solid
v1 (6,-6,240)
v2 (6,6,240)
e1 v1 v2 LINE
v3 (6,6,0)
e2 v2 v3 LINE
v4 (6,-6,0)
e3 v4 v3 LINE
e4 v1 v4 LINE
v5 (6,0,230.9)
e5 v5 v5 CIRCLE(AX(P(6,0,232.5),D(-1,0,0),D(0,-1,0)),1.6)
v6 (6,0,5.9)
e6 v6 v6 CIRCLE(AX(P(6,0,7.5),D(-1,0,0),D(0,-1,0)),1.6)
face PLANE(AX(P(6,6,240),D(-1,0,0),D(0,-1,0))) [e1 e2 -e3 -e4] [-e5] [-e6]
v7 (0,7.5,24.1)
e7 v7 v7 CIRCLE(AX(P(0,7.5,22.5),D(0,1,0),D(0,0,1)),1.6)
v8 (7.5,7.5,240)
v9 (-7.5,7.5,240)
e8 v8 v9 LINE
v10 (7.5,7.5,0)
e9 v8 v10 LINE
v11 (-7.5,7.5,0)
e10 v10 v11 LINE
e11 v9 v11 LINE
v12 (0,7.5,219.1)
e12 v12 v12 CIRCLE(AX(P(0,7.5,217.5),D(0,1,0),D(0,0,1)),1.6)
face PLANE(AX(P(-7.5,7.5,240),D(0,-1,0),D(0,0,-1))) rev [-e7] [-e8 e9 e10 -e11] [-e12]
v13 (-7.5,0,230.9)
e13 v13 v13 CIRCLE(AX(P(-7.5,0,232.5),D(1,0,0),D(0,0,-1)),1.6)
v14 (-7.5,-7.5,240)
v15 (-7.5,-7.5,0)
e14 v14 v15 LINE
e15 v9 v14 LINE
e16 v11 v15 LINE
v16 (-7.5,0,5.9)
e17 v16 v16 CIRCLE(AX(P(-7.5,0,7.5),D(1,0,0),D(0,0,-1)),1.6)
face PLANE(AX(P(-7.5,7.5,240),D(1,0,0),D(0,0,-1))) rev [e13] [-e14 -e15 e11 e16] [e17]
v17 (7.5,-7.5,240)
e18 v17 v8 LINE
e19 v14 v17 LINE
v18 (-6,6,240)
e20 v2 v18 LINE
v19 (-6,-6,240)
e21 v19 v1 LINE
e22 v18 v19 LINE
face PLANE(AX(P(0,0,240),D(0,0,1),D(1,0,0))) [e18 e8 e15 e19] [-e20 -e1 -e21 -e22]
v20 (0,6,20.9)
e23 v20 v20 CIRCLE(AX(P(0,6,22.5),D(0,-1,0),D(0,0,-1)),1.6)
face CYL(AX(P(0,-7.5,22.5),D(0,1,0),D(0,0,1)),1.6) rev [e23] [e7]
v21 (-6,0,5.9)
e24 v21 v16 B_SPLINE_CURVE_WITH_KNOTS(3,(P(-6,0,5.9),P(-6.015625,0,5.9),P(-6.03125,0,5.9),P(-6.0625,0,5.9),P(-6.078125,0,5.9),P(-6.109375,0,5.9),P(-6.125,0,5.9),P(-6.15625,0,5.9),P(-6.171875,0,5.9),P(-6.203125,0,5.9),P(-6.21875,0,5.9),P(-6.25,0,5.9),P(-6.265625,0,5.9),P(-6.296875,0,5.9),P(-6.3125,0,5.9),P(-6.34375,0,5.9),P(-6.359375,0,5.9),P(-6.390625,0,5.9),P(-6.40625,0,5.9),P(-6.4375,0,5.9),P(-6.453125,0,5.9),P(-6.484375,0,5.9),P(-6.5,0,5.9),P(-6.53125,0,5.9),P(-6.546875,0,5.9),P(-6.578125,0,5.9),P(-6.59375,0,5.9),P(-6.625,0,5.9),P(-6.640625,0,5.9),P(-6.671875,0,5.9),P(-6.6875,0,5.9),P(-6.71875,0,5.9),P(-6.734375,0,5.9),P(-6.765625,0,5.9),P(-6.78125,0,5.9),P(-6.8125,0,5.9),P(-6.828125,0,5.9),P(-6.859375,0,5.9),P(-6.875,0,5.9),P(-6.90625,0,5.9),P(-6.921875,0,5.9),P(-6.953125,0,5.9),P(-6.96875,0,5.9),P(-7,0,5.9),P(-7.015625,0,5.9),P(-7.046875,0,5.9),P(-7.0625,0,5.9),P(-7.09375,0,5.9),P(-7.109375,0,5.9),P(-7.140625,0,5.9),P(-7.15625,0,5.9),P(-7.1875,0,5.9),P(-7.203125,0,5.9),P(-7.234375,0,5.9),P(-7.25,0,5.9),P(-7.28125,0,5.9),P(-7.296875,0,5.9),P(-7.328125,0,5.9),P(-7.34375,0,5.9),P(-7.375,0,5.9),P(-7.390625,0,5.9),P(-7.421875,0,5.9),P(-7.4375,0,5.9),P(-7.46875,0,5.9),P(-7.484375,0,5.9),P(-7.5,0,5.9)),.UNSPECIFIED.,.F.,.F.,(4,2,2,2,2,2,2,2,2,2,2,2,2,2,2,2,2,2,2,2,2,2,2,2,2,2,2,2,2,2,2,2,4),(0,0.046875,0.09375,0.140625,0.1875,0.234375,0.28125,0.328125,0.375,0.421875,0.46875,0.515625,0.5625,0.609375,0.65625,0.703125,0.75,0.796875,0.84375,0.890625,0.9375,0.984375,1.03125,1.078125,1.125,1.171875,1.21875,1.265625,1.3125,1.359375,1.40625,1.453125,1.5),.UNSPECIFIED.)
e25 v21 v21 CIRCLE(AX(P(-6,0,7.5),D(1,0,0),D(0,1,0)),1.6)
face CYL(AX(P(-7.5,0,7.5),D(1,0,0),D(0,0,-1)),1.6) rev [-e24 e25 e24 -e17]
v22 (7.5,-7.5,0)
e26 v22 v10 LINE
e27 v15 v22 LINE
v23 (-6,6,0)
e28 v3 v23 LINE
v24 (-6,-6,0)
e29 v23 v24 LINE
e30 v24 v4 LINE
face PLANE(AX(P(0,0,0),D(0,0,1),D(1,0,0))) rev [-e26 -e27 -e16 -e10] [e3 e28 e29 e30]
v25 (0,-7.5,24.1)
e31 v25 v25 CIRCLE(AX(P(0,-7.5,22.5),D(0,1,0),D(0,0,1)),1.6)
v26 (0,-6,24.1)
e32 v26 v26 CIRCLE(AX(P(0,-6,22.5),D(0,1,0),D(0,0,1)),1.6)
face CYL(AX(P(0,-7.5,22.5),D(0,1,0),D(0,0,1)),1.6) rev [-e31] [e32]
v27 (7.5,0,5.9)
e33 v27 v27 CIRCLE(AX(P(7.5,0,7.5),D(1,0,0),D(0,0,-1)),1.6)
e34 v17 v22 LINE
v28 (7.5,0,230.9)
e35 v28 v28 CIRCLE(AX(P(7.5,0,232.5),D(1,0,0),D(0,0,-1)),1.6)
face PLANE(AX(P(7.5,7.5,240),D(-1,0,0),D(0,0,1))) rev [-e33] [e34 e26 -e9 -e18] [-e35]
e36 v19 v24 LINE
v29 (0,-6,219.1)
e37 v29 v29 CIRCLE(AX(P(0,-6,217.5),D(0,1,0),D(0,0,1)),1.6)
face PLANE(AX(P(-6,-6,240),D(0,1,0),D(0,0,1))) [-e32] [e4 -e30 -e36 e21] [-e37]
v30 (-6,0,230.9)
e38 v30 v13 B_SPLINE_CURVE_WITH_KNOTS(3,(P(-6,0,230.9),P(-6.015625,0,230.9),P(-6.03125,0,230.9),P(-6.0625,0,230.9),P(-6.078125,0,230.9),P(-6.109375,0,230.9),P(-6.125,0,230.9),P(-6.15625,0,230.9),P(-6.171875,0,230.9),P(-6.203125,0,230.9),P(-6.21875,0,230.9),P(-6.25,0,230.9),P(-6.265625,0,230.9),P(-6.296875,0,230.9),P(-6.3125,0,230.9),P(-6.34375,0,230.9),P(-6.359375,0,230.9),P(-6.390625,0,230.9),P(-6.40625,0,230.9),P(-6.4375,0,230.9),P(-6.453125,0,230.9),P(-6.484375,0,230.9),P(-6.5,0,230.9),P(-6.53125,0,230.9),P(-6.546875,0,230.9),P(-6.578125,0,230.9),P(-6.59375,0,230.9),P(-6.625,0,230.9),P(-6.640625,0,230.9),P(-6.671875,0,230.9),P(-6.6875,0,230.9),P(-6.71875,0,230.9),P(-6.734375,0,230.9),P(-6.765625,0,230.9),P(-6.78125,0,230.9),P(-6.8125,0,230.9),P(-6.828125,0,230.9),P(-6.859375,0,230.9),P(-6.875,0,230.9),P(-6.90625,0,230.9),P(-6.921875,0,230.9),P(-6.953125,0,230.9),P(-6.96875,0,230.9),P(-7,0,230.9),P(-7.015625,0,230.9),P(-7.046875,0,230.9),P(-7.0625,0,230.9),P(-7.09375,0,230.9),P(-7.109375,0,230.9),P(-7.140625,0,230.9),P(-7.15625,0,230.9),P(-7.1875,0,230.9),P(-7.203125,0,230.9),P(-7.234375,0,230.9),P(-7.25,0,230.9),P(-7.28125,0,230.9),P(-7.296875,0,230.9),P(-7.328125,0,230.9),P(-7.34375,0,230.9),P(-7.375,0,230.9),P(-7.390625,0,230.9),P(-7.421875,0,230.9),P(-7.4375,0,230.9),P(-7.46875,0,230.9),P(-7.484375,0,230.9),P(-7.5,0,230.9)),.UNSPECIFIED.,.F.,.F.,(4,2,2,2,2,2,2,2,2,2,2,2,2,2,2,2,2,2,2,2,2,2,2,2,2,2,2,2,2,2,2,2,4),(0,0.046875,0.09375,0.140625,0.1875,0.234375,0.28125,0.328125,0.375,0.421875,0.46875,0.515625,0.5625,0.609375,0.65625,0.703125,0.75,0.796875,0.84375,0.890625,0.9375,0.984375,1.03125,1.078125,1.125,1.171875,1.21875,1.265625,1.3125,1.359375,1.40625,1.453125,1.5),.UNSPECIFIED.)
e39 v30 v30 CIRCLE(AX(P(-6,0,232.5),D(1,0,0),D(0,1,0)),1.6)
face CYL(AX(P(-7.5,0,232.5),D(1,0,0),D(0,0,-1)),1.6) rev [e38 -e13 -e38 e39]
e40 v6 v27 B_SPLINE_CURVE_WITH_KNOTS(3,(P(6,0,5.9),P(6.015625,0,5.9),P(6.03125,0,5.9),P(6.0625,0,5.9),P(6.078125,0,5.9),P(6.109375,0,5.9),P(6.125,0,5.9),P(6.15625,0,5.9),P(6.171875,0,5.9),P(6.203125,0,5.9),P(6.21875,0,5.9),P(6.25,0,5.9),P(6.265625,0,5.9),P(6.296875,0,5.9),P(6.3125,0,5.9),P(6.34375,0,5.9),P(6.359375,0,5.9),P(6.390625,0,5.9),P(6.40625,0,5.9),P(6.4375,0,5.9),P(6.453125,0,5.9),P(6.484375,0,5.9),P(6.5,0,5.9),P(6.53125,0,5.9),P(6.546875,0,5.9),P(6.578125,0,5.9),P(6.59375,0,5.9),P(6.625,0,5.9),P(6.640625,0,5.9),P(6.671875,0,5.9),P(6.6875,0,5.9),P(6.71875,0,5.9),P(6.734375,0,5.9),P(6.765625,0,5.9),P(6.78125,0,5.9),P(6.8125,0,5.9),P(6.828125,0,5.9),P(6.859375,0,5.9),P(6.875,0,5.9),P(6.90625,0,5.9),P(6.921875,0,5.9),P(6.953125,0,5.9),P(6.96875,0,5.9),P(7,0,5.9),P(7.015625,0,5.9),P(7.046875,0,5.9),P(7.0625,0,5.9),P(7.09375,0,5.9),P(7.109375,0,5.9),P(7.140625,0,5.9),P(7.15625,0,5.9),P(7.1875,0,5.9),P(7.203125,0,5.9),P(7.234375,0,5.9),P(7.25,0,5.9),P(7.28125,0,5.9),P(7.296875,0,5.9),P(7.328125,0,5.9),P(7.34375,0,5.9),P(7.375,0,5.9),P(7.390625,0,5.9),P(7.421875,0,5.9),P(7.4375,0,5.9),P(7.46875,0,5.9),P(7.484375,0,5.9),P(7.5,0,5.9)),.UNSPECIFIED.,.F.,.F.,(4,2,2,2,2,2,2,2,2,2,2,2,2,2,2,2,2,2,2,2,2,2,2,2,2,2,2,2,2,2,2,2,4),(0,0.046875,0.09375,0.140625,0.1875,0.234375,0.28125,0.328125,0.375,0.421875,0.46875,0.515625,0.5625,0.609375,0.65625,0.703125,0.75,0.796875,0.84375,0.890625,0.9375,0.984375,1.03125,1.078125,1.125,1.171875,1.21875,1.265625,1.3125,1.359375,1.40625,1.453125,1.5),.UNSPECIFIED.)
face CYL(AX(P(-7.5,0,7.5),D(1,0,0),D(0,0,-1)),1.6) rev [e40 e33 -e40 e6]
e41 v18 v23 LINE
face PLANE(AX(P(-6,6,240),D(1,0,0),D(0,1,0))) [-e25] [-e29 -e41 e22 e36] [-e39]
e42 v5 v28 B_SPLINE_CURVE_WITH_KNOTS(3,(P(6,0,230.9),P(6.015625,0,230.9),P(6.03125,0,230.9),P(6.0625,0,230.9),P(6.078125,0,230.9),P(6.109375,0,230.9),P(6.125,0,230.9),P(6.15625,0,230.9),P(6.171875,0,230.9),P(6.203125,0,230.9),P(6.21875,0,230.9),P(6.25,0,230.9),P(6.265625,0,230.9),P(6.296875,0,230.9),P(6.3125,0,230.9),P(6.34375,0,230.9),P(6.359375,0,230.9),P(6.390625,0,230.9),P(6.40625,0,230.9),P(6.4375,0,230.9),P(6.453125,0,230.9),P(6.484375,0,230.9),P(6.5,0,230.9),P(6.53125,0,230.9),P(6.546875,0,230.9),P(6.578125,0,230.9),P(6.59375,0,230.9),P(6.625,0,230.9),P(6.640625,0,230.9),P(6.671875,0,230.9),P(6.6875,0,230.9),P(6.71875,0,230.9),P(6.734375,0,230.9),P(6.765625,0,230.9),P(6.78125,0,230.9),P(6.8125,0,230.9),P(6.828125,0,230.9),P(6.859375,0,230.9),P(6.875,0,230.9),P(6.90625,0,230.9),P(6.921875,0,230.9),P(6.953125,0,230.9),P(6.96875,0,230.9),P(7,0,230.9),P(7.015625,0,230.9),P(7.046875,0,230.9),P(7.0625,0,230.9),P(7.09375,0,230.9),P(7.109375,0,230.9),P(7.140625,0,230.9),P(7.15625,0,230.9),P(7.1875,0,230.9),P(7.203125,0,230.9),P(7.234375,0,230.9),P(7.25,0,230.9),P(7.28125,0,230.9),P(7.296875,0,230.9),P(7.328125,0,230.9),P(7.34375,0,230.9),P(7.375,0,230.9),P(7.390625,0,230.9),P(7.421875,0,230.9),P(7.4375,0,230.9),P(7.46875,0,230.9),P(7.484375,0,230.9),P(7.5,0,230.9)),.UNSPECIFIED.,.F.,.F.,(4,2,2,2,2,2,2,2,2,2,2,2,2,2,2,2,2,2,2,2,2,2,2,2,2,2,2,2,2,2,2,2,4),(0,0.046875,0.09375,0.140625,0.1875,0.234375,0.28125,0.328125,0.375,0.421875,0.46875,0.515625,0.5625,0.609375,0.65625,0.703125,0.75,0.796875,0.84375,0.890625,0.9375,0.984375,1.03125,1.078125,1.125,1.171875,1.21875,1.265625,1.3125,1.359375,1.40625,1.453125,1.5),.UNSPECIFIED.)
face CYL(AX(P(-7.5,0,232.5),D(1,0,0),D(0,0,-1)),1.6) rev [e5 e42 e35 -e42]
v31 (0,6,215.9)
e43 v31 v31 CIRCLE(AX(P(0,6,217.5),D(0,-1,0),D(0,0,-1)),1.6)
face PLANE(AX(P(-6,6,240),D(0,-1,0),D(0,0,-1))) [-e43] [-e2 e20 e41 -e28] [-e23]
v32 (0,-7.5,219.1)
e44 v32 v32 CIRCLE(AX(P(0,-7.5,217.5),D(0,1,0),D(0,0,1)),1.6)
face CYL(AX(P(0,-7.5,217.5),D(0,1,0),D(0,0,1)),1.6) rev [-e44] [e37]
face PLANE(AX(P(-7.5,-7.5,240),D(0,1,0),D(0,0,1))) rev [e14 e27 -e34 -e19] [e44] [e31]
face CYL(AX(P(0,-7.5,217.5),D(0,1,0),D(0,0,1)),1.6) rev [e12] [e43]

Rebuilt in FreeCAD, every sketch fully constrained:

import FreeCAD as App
import Part
import Sketcher

doc = App.newDocument("Part")
params = doc.addObject("Spreadsheet::Sheet", "Params")
for row, (alias, value) in enumerate([
    ("sketch1_width", "15 mm"),
    ("sketch1_width2", "12 mm"),
    ("pad1_length", "240 mm"),
    ("sketch2_diameter", "3.2 mm"),
    ("sketch3_diameter", "3.2 mm"),
], start=1):
    params.set(f"A{row}", alias)
    params.set(f"B{row}", "=" + value)
    params.setAlias(f"B{row}", alias)

body = doc.addObject("PartDesign::Body", "Body")

sketch1 = body.newObject("Sketcher::SketchObject", "Sketch")
sketch1.AttachmentSupport = (doc.getObject("XY_Plane"), [""])
sketch1.MapMode = "FlatFace"
sketch1.addGeometry(Part.LineSegment(App.Vector(-8, 8, 0), App.Vector(-8, -8, 0)), False)
sketch1.addGeometry(Part.LineSegment(App.Vector(-8, -8, 0), App.Vector(8, -8, 0)), False)
sketch1.addGeometry(Part.LineSegment(App.Vector(8, -8, 0), App.Vector(8, 8, 0)), False)
sketch1.addGeometry(Part.LineSegment(App.Vector(8, 8, 0), App.Vector(-8, 8, 0)), False)
sketch1.addGeometry(Part.LineSegment(App.Vector(6, -6, 0), App.Vector(-6, -6, 0)), False)
sketch1.addGeometry(Part.LineSegment(App.Vector(-6, -6, 0), App.Vector(-6, 6, 0)), False)
sketch1.addGeometry(Part.LineSegment(App.Vector(-6, 6, 0), App.Vector(6, 6, 0)), False)
sketch1.addGeometry(Part.LineSegment(App.Vector(6, 6, 0), App.Vector(6, -6, 0)), False)
sketch1.addConstraint(Sketcher.Constraint("Coincident", 0, 2, 1, 1))
sketch1.addConstraint(Sketcher.Constraint("Coincident", 1, 2, 2, 1))
sketch1.addConstraint(Sketcher.Constraint("Coincident", 2, 2, 3, 1))
sketch1.addConstraint(Sketcher.Constraint("Coincident", 3, 2, 0, 1))
sketch1.addConstraint(Sketcher.Constraint("Coincident", 4, 2, 5, 1))
sketch1.addConstraint(Sketcher.Constraint("Coincident", 5, 2, 6, 1))
sketch1.addConstraint(Sketcher.Constraint("Coincident", 6, 2, 7, 1))
sketch1.addConstraint(Sketcher.Constraint("Coincident", 7, 2, 4, 1))
sketch1.addConstraint(Sketcher.Constraint("Vertical", 0))
sketch1.addConstraint(Sketcher.Constraint("Horizontal", 1))
sketch1.addConstraint(Sketcher.Constraint("Vertical", 2))
sketch1.addConstraint(Sketcher.Constraint("Horizontal", 3))
sketch1.addConstraint(Sketcher.Constraint("Horizontal", 4))
sketch1.addConstraint(Sketcher.Constraint("Vertical", 5))
sketch1.addConstraint(Sketcher.Constraint("Horizontal", 6))
sketch1.addConstraint(Sketcher.Constraint("Vertical", 7))
sketch1.addConstraint(Sketcher.Constraint("Symmetric", 0, 2, 2, 2, -1, 1))
sketch1.addConstraint(Sketcher.Constraint("Symmetric", 4, 2, 6, 2, -1, 1))
sketch1.addConstraint(Sketcher.Constraint("Equal", 3, 0))
sketch1.addConstraint(Sketcher.Constraint("Equal", 6, 5))
sketch1.addConstraint(Sketcher.Constraint("DistanceX", 1, 1, 1, 2, 15.0))
sketch1.addConstraint(Sketcher.Constraint("DistanceX", 4, 2, 4, 1, 12.0))
sketch1.setExpression("Constraints[20]", "Params.sketch1_width")
sketch1.setExpression("Constraints[21]", "Params.sketch1_width2")
pad1 = body.newObject("PartDesign::Pad", "Pad")
pad1.Profile = sketch1
pad1.setExpression("Length", "Params.pad1_length")

sketch2 = body.newObject("Sketcher::SketchObject", "Sketch001")
sketch2.AttachmentSupport = (doc.getObject("XZ_Plane"), [""])
sketch2.MapMode = "FlatFace"
sketch2.AttachmentOffset = App.Placement(App.Vector(0, 0, -7.5), App.Rotation())
sketch2.addGeometry(Part.Circle(App.Vector(0, 22.5, 0), App.Vector(0, 0, 1), 1.6), False)
sketch2.addGeometry(Part.Circle(App.Vector(0, 217.5, 0), App.Vector(0, 0, 1), 1.6), False)
sketch2.addConstraint(Sketcher.Constraint("Equal", 0, 1))
sketch2.addConstraint(Sketcher.Constraint("PointOnObject", 0, 3, -2))
sketch2.addConstraint(Sketcher.Constraint("PointOnObject", 1, 3, -2))
sketch2.addConstraint(Sketcher.Constraint("Diameter", 0, 3.2))
sketch2.addConstraint(Sketcher.Constraint("DistanceY", 0, 3, 1, 3, 195.0))
sketch2.addConstraint(Sketcher.Constraint("DistanceY", -1, 1, 0, 3, 22.5))
sketch2.setExpression("Constraints[3]", "Params.sketch2_diameter")
pocket1 = body.newObject("PartDesign::Pocket", "Pocket")
pocket1.Profile = sketch2
pocket1.Type = "ThroughAll"
pocket1.Reversed = True

sketch3 = body.newObject("Sketcher::SketchObject", "Sketch002")
sketch3.AttachmentSupport = (doc.getObject("YZ_Plane"), [""])
sketch3.MapMode = "FlatFace"
sketch3.AttachmentOffset = App.Placement(App.Vector(0, 0, 7.5), App.Rotation())
sketch3.addGeometry(Part.Circle(App.Vector(0, 232.5, 0), App.Vector(0, 0, 1), 1.6), False)
sketch3.addGeometry(Part.Circle(App.Vector(0, 7.5, 0), App.Vector(0, 0, 1), 1.6), False)
sketch3.addConstraint(Sketcher.Constraint("Equal", 0, 1))
sketch3.addConstraint(Sketcher.Constraint("PointOnObject", 0, 3, -2))
sketch3.addConstraint(Sketcher.Constraint("PointOnObject", 1, 3, -2))
sketch3.addConstraint(Sketcher.Constraint("Diameter", 0, 3.2))
sketch3.addConstraint(Sketcher.Constraint("DistanceY", 1, 3, 0, 3, 225.0))
sketch3.addConstraint(Sketcher.Constraint("DistanceY", -1, 1, 0, 3, 232.5))
sketch3.setExpression("Constraints[3]", "Params.sketch3_diameter")
pocket2 = body.newObject("PartDesign::Pocket", "Pocket001")
pocket2.Profile = sketch3
pocket2.Type = "ThroughAll"

doc.recompute()
